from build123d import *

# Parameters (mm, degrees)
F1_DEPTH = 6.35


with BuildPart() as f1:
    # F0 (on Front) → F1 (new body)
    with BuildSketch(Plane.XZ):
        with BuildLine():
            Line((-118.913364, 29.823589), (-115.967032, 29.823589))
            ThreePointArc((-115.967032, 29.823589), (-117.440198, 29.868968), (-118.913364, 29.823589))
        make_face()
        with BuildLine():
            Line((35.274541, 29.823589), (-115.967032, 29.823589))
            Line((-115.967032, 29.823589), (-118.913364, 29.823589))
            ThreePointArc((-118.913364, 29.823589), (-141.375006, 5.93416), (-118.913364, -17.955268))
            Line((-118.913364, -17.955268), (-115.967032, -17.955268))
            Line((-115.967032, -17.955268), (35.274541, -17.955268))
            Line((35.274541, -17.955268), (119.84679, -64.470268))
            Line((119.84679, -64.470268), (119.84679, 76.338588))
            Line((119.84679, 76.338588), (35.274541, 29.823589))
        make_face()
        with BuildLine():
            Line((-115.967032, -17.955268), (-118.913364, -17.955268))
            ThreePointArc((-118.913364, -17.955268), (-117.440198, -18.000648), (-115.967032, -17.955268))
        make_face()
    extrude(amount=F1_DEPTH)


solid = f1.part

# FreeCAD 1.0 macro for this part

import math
import FreeCAD as App
import Part
import Sketcher
from FreeCAD import Vector
Q = App.Units.Quantity

doc = App.newDocument("Part")
body = doc.addObject("PartDesign::Body", "Body")

sketch1 = body.newObject("Sketcher::SketchObject", "Sketch")
sketch1.AttachmentSupport = (doc.getObject("XZ_Plane"), [""])
sketch1.MapMode = "FlatFace"
sketch1.addGeometry(Part.ArcOfCircle(Part.Circle(Vector(-117.440198, 5.934138, 0), Vector(0, 0, 1), 23.93483), math.radians(86.471269), math.radians(93.528731)), False)
sketch1.addGeometry(Part.ArcOfCircle(Part.Circle(Vector(-117.440198, 5.93416, 0), Vector(0, 0, 1), 23.934808), math.radians(93.528733), math.radians(266.471267)), False)
sketch1.addGeometry(Part.ArcOfCircle(Part.Circle(Vector(-117.440198, 5.933656, 0), Vector(0, 0, 1), 23.934304), math.radians(-93.528809), math.radians(-86.471191)), False)
sketch1.addGeometry(Part.LineSegment(Vector(-115.967032, -17.955268, 0), Vector(35.274541, -17.955268, 0)), False)
sketch1.addGeometry(Part.LineSegment(Vector(35.274541, -17.955268, 0), Vector(119.84679, -64.470268, 0)), False)
sketch1.addGeometry(Part.LineSegment(Vector(119.84679, -64.470268, 0), Vector(119.84679, 76.338588, 0)), False)
sketch1.addGeometry(Part.LineSegment(Vector(119.84679, 76.338588, 0), Vector(35.274541, 29.823589, 0)), False)
sketch1.addGeometry(Part.LineSegment(Vector(35.274541, 29.823589, 0), Vector(-115.967032, 29.823589, 0)), False)
sketch1.addConstraint(Sketcher.Constraint("Coincident", 0, 2, 1, 1))
sketch1.addConstraint(Sketcher.Constraint("Coincident", 1, 2, 2, 1))
sketch1.addConstraint(Sketcher.Constraint("Coincident", 2, 2, 3, 1))
sketch1.addConstraint(Sketcher.Constraint("Coincident", 3, 2, 4, 1))
sketch1.addConstraint(Sketcher.Constraint("Coincident", 4, 2, 5, 1))
sketch1.addConstraint(Sketcher.Constraint("Coincident", 5, 2, 6, 1))
sketch1.addConstraint(Sketcher.Constraint("Coincident", 6, 2, 7, 1))
sketch1.addConstraint(Sketcher.Constraint("Coincident", 7, 2, 0, 1))
sketch1.addConstraint(Sketcher.Constraint("Horizontal", 3))
sketch1.addConstraint(Sketcher.Constraint("Vertical", 5))
sketch1.addConstraint(Sketcher.Constraint("Horizontal", 7))
sketch1.addConstraint(Sketcher.Constraint("Distance", 4, Q("3.8 in")))
sketch1.addConstraint(Sketcher.Constraint("Distance", 6, Q("3.8 in")))
sketch1.addConstraint(Sketcher.Constraint("Radius", 0, 23.93483))
sketch1.addConstraint(Sketcher.Constraint("Radius", 1, 23.934808))
sketch1.addConstraint(Sketcher.Constraint("Radius", 2, 23.934304))
sketch1.addConstraint(Sketcher.Constraint("DistanceX", 1, 3, -1, 1, 117.440198))
sketch1.addConstraint(Sketcher.Constraint("DistanceY", 4, 2, 3, 2, 46.515))
sketch1.addConstraint(Sketcher.Constraint("DistanceY", 4, 2, 1, 2, 46.515))
sketch1.addConstraint(Sketcher.Constraint("DistanceY", 0, 2, 5, 2, 46.514999))
sketch1.addConstraint(Sketcher.Constraint("DistanceY", 6, 2, 5, 2, 46.514999))
sketch1.addConstraint(Sketcher.Constraint("DistanceX", 3, 1, 3, 2, 151.241573))
sketch1.addConstraint(Sketcher.Constraint("DistanceX", 7, 2, 7, 1, 151.241573))
sketch1.addConstraint(Sketcher.Constraint("DistanceY", 5, 1, 5, 2, 140.808856))
sketch1.addConstraint(Sketcher.Constraint("DistanceY", -1, 1, 1, 3, 5.93416))
sketch1.addConstraint(Sketcher.Constraint("DistanceY", -1, 1, 0, 2, 29.823589))
sketch1.addConstraint(Sketcher.Constraint("DistanceX", 2, 2, -1, 1, 115.967032))
pad1 = body.newObject("PartDesign::Pad", "Pad")
pad1.Profile = sketch1
pad1.Length = Q("0.25 in")

doc.recompute()
